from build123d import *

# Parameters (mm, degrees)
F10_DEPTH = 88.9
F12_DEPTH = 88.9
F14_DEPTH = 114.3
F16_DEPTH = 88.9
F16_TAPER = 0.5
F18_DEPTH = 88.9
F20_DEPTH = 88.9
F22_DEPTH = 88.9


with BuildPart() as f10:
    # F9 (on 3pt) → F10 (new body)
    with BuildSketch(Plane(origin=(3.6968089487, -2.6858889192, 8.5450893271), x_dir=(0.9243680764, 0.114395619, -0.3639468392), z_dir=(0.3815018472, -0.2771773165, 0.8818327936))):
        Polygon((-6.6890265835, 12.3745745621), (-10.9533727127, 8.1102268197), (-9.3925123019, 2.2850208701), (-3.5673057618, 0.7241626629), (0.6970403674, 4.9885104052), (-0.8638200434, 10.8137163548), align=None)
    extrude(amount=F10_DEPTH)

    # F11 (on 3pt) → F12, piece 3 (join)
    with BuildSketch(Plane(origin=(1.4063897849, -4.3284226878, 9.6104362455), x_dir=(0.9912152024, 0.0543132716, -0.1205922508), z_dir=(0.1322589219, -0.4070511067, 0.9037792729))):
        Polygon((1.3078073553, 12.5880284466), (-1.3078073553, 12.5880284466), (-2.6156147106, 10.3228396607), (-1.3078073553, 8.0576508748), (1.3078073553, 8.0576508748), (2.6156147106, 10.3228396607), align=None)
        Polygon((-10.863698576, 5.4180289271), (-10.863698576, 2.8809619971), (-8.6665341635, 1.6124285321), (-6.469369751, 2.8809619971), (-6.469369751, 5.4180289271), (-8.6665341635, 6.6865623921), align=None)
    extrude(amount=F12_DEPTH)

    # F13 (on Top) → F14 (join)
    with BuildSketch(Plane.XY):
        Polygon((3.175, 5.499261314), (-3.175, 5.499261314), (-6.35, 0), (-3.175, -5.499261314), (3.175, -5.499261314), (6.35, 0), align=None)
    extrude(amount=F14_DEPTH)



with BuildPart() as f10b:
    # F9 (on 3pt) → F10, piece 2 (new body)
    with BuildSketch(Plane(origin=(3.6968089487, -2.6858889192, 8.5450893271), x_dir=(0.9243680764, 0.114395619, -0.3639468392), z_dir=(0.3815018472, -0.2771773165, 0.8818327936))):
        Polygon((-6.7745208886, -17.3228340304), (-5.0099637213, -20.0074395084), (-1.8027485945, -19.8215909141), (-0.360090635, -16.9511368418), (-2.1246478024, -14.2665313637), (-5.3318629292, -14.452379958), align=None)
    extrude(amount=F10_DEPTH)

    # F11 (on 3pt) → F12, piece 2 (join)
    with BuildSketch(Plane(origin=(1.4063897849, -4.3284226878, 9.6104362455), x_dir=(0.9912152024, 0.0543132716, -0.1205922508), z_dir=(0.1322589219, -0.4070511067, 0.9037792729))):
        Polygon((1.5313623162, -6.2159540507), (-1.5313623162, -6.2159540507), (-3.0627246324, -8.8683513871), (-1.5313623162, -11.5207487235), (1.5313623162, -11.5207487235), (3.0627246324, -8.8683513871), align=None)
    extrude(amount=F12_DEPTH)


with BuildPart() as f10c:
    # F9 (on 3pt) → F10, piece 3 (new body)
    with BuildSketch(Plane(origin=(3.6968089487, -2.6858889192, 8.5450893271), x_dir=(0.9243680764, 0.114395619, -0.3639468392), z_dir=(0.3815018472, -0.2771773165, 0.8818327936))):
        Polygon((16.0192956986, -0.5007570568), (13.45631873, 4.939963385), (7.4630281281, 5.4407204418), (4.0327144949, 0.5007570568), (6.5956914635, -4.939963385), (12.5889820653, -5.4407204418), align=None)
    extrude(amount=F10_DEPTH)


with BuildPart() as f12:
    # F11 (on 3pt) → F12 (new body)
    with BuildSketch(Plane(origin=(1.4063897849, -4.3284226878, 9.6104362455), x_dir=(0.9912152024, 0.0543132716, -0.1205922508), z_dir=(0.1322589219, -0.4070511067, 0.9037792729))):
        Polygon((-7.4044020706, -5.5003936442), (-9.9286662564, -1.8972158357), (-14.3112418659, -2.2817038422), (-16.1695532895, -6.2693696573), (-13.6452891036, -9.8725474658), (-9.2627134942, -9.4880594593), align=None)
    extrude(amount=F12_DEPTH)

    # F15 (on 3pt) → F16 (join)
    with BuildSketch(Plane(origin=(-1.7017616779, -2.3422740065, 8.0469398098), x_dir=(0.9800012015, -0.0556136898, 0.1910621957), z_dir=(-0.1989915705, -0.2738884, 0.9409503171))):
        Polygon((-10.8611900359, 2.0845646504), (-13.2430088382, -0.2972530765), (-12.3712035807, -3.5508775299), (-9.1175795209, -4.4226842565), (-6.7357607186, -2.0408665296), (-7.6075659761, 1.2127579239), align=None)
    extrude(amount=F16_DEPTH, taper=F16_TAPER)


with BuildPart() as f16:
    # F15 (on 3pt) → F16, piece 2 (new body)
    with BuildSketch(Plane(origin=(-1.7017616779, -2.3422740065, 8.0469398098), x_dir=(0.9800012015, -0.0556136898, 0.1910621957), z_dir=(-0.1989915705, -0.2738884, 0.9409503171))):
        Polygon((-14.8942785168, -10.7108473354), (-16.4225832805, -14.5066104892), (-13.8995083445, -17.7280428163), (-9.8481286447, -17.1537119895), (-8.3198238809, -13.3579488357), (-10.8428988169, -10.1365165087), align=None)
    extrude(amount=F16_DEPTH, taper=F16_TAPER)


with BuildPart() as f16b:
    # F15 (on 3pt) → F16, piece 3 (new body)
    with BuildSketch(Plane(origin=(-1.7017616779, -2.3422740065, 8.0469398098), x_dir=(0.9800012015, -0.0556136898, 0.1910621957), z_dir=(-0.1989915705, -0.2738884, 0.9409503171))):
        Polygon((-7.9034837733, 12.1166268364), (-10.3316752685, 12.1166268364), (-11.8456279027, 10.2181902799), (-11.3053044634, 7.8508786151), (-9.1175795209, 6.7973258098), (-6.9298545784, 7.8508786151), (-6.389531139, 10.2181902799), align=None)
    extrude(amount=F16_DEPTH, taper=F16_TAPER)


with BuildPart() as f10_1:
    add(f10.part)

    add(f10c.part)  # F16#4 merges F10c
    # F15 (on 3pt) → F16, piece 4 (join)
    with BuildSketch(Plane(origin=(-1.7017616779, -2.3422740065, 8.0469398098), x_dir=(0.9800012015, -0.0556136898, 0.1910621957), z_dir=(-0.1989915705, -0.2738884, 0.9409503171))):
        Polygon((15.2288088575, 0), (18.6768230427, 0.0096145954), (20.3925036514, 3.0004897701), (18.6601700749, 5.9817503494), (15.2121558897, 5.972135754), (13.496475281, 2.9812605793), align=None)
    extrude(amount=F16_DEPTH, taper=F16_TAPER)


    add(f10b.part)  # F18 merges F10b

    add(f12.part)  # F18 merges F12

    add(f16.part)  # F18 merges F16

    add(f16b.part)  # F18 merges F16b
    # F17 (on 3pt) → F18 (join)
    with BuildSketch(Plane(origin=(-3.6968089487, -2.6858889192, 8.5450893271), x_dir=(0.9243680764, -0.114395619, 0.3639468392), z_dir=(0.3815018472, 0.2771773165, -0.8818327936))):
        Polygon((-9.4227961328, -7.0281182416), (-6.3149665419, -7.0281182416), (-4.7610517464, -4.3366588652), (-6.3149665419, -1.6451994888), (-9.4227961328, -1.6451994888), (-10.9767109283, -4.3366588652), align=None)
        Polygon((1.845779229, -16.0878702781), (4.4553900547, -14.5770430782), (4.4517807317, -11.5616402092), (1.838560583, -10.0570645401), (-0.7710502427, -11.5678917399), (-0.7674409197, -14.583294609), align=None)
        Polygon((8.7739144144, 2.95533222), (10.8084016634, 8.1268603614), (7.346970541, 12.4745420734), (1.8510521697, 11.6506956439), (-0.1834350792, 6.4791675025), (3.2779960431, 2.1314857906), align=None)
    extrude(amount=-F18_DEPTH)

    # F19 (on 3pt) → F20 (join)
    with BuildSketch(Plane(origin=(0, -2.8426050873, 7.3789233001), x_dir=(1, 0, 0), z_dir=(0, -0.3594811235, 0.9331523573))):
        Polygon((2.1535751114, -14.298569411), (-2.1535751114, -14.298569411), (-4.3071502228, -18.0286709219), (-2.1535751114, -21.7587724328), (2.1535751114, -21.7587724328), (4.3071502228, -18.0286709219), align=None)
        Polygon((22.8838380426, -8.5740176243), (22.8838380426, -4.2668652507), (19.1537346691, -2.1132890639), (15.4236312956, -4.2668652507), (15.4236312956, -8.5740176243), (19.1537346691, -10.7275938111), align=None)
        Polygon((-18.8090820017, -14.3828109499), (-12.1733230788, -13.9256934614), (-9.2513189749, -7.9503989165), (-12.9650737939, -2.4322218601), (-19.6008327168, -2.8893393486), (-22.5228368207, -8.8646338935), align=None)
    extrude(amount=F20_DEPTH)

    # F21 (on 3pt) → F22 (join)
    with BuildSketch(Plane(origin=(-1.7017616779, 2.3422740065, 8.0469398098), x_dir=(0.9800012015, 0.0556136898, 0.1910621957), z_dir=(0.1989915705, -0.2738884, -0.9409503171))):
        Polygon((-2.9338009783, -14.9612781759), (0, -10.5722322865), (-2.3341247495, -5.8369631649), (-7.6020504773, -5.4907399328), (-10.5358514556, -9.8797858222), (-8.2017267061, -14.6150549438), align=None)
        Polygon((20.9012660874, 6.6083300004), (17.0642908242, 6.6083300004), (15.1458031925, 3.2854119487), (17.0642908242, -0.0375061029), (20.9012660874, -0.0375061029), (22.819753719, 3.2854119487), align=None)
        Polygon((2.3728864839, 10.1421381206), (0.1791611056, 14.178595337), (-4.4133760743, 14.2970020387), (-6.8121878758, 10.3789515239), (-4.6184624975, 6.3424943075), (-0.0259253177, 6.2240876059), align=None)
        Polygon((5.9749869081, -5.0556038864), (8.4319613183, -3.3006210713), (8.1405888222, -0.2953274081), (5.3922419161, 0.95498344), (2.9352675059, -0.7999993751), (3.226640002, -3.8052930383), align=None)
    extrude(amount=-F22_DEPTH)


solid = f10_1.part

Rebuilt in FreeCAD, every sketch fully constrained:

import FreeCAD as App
import Part
import Sketcher
from FreeCAD import Vector
Q = App.Units.Quantity

doc = App.newDocument("Part")
body = doc.addObject("PartDesign::Body", "Body")

# Sketch on an angled plane
sketch1 = body.newObject("Sketcher::SketchObject", "Sketch")
sketch1.Placement = App.Placement(Vector(3.696809, -2.685889, 8.545089), App.Rotation(Vector(0.924368076, 0.114395619, -0.363946839), Vector(0, 0.953984474, 0.299856002), Vector(0.381501847, -0.277177316, 0.881832794), "ZXY"))
sketch1.addGeometry([
    Part.LineSegment(Vector(-6.689027, 12.374575, 0), Vector(-10.953373, 8.110227, 0)),  # 0
    Part.LineSegment(Vector(-10.953373, 8.110227, 0), Vector(-9.392512, 2.285021, 0)),  # 1
    Part.LineSegment(Vector(-9.392512, 2.285021, 0), Vector(-3.567306, 0.724163, 0)),  # 2
    Part.LineSegment(Vector(-3.567306, 0.724163, 0), Vector(0.69704, 4.98851, 0)),  # 3
    Part.LineSegment(Vector(0.69704, 4.98851, 0), Vector(-0.86382, 10.813716, 0)),  # 4
    Part.LineSegment(Vector(-0.86382, 10.813716, 0), Vector(-6.689027, 12.374575, 0)),  # 5
], False)
sketch1.addConstraint([
    Sketcher.Constraint("Coincident", 0, 2, 1, 1),
    Sketcher.Constraint("Coincident", 1, 2, 2, 1),
    Sketcher.Constraint("Coincident", 2, 2, 3, 1),
    Sketcher.Constraint("Coincident", 3, 2, 4, 1),
    Sketcher.Constraint("Coincident", 4, 2, 5, 1),
    Sketcher.Constraint("Coincident", 5, 2, 0, 1),
    Sketcher.Constraint("Parallel", 0, 3),
    Sketcher.Constraint("Parallel", 1, 4),
    Sketcher.Constraint("Parallel", 2, 5),
    Sketcher.Constraint("Equal", 0, 1),
    Sketcher.Constraint("Equal", 1, 2),
    Sketcher.Constraint("Equal", 2, 3),
    Sketcher.Constraint("Angle", 0, Q("-134.999989 deg")),
    Sketcher.Constraint("Angle", 1, Q("-74.999989 deg")),
    Sketcher.Constraint("Angle", 2, Q("-14.999989 deg")),
    Sketcher.Constraint("DistanceY", -1, 1, 1, 2, 2.285021),
    Sketcher.Constraint("DistanceX", -1, 1, 3, 2, 0.69704),
    Sketcher.Constraint("DistanceY", -1, 1, 3, 2, 4.98851),
])
pad1 = body.newObject("PartDesign::Pad", "Pad")
pad1.Profile = sketch1
pad1.Length = Q("3.5 in")

# Sketch on an angled plane
sketch2 = body.newObject("Sketcher::SketchObject", "Sketch001")
sketch2.Placement = App.Placement(Vector(1.40639, -4.328423, 9.610436), App.Rotation(Vector(0.991215202, 0.054313272, -0.120592251), Vector(0, 0.911789156, 0.41065866), Vector(0.132258922, -0.407051107, 0.903779273), "ZXY"))
sketch2.addGeometry([
    Part.LineSegment(Vector(1.307807, 12.588028, 0), Vector(-1.307807, 12.588028, 0)),  # 0
    Part.LineSegment(Vector(-1.307807, 12.588028, 0), Vector(-2.615615, 10.32284, 0)),  # 1
    Part.LineSegment(Vector(-2.615615, 10.32284, 0), Vector(-1.307807, 8.057651, 0)),  # 2
    Part.LineSegment(Vector(-1.307807, 8.057651, 0), Vector(1.307807, 8.057651, 0)),  # 3
    Part.LineSegment(Vector(1.307807, 8.057651, 0), Vector(2.615615, 10.32284, 0)),  # 4
    Part.LineSegment(Vector(2.615615, 10.32284, 0), Vector(1.307807, 12.588028, 0)),  # 5
    Part.LineSegment(Vector(-10.863699, 5.418029, 0), Vector(-10.863699, 2.880962, 0)),  # 6
    Part.LineSegment(Vector(-10.863699, 2.880962, 0), Vector(-8.666534, 1.612429, 0)),  # 7
    Part.LineSegment(Vector(-8.666534, 1.612429, 0), Vector(-6.46937, 2.880962, 0)),  # 8
    Part.LineSegment(Vector(-6.46937, 2.880962, 0), Vector(-6.46937, 5.418029, 0)),  # 9
    Part.LineSegment(Vector(-6.46937, 5.418029, 0), Vector(-8.666534, 6.686562, 0)),  # 10
    Part.LineSegment(Vector(-8.666534, 6.686562, 0), Vector(-10.863699, 5.418029, 0)),  # 11
], False)
sketch2.addConstraint([
    Sketcher.Constraint("Coincident", 0, 2, 1, 1),
    Sketcher.Constraint("Coincident", 1, 2, 2, 1),
    Sketcher.Constraint("Coincident", 2, 2, 3, 1),
    Sketcher.Constraint("Coincident", 3, 2, 4, 1),
    Sketcher.Constraint("Coincident", 4, 2, 5, 1),
    Sketcher.Constraint("Coincident", 5, 2, 0, 1),
    Sketcher.Constraint("Coincident", 6, 2, 7, 1),
    Sketcher.Constraint("Coincident", 7, 2, 8, 1),
    Sketcher.Constraint("Coincident", 8, 2, 9, 1),
    Sketcher.Constraint("Coincident", 9, 2, 10, 1),
    Sketcher.Constraint("Coincident", 10, 2, 11, 1),
    Sketcher.Constraint("Coincident", 11, 2, 6, 1),
    Sketcher.Constraint("Horizontal", 0),
    Sketcher.Constraint("Horizontal", 3),
    Sketcher.Constraint("Vertical", 6),
    Sketcher.Constraint("Vertical", 9),
    Sketcher.Constraint("Symmetric", 1, 2, 4, 2, -2),
    Sketcher.Constraint("Parallel", 1, 4),
    Sketcher.Constraint("Parallel", 2, 5),
    Sketcher.Constraint("Perpendicular", 4, 7),
    Sketcher.Constraint("Perpendicular", 5, 8),
    Sketcher.Constraint("Parallel", 7, 10),
    Sketcher.Constraint("Parallel", 8, 11),
    Sketcher.Constraint("Horizontal", 6, 2, 8, 2),
    Sketcher.Constraint("Horizontal", 9, 2, 11, 2),
    Sketcher.Constraint("Vertical", 0, 2, 2, 2),
    Sketcher.Constraint("Vertical", 3, 2, 5, 2),
    Sketcher.Constraint("Angle", 1, Q("-120 deg")),
    Sketcher.Constraint("DistanceX", 6, 2, -1, 1, 10.863699),
    Sketcher.Constraint("DistanceY", 7, 2, 0, 2, 10.9756),
    Sketcher.Constraint("DistanceY", 7, 2, 9, 2, 3.8056),
    Sketcher.Constraint("DistanceX", 0, 2, 0, 1, 2.615615),
    Sketcher.Constraint("DistanceY", 6, 2, 6, 1, 2.537067),
    Sketcher.Constraint("DistanceY", -1, 1, 0, 2, 12.588028),
    Sketcher.Constraint("DistanceY", -1, 1, 1, 2, 10.32284),
])
pad2 = body.newObject("PartDesign::Pad", "Pad001")
pad2.Profile = sketch2
pad2.Length = Q("3.5 in")

# Sketch on XY plane
sketch3 = body.newObject("Sketcher::SketchObject", "Sketch002")
sketch3.AttachmentSupport = (doc.getObject("XY_Plane"), [""])
sketch3.MapMode = "FlatFace"
sketch3.addGeometry([
    Part.LineSegment(Vector(3.175, 5.499261, 0), Vector(-3.175, 5.499261, 0)),  # 0
    Part.LineSegment(Vector(-3.175, 5.499261, 0), Vector(-6.35, 0, 0)),  # 1
    Part.LineSegment(Vector(-6.35, 0, 0), Vector(-3.175, -5.499261, 0)),  # 2
    Part.LineSegment(Vector(-3.175, -5.499261, 0), Vector(3.175, -5.499261, 0)),  # 3
    Part.LineSegment(Vector(3.175, -5.499261, 0), Vector(6.35, 0, 0)),  # 4
    Part.LineSegment(Vector(6.35, 0, 0), Vector(3.175, 5.499261, 0)),  # 5
], False)
sketch3.addConstraint([
    Sketcher.Constraint("Coincident", 0, 2, 1, 1),
    Sketcher.Constraint("Coincident", 1, 2, 2, 1),
    Sketcher.Constraint("Coincident", 2, 2, 3, 1),
    Sketcher.Constraint("Coincident", 3, 2, 4, 1),
    Sketcher.Constraint("Coincident", 4, 2, 5, 1),
    Sketcher.Constraint("Coincident", 5, 2, 0, 1),
    Sketcher.Constraint("Horizontal", 0),
    Sketcher.Constraint("Horizontal", 3),
    Sketcher.Constraint("Symmetric", 0, 2, 3, 2, -1, 1),
    Sketcher.Constraint("Symmetric", 1, 2, 4, 2, -1, 1),
    Sketcher.Constraint("PointOnObject", 1, 2, -1),
    Sketcher.Constraint("Parallel", 2, 5),
    Sketcher.Constraint("Vertical", 0, 2, 2, 2),
    Sketcher.Constraint("Angle", 1, Q("-120 deg")),
    Sketcher.Constraint("DistanceX", 0, 2, 0, 1, Q("0.25 in")),
    Sketcher.Constraint("DistanceX", 1, 2, 4, 2, Q("0.5 in")),
])
pad3 = body.newObject("PartDesign::Pad", "Pad002")
pad3.Profile = sketch3
pad3.Length = Q("4.5 in")
body2 = doc.addObject("PartDesign::Body", "Body001")

# Sketch on an angled plane
sketch4 = body2.newObject("Sketcher::SketchObject", "Sketch003")
sketch4.Placement = App.Placement(Vector(3.696809, -2.685889, 8.545089), App.Rotation(Vector(0.924368076, 0.114395619, -0.363946839), Vector(0, 0.953984474, 0.299856002), Vector(0.381501847, -0.277177316, 0.881832794), "ZXY"))
sketch4.addGeometry([
    Part.LineSegment(Vector(-6.774521, -17.322834, 0), Vector(-5.009964, -20.007439, 0)),  # 0
    Part.LineSegment(Vector(-5.009964, -20.007439, 0), Vector(-1.802749, -19.821591, 0)),  # 1
    Part.LineSegment(Vector(-1.802749, -19.821591, 0), Vector(-0.360091, -16.951137, 0)),  # 2
    Part.LineSegment(Vector(-0.360091, -16.951137, 0), Vector(-2.124648, -14.266531, 0)),  # 3
    Part.LineSegment(Vector(-2.124648, -14.266531, 0), Vector(-5.331863, -14.45238, 0)),  # 4
    Part.LineSegment(Vector(-5.331863, -14.45238, 0), Vector(-6.774521, -17.322834, 0)),  # 5
], False)
sketch4.addConstraint([
    Sketcher.Constraint("Coincident", 0, 2, 1, 1),
    Sketcher.Constraint("Coincident", 1, 2, 2, 1),
    Sketcher.Constraint("Coincident", 2, 2, 3, 1),
    Sketcher.Constraint("Coincident", 3, 2, 4, 1),
    Sketcher.Constraint("Coincident", 4, 2, 5, 1),
    Sketcher.Constraint("Coincident", 5, 2, 0, 1),
    Sketcher.Constraint("Parallel", 0, 3),
    Sketcher.Constraint("Parallel", 1, 4),
    Sketcher.Constraint("Parallel", 2, 5),
    Sketcher.Constraint("Equal", 0, 1),
    Sketcher.Constraint("Equal", 1, 2),
    Sketcher.Constraint("Equal", 2, 3),
    Sketcher.Constraint("DistanceX", 3, 2, 1, 2, 0.321899),
    Sketcher.Constraint("DistanceY", 0, 2, -1, 1, 20.007439),
    Sketcher.Constraint("DistanceX", 1, 2, -1, 1, 1.802749),
    Sketcher.Constraint("DistanceY", 1, 2, -1, 1, 19.821591),
    Sketcher.Constraint("DistanceX", 2, 2, -1, 1, 0.360091),
    Sketcher.Constraint("DistanceY", 3, 2, -1, 1, 14.266531),
])
pad4 = body2.newObject("PartDesign::Pad", "Pad003")
pad4.Profile = sketch4
pad4.Length = Q("3.5 in")

# Sketch on an angled plane
sketch5 = body2.newObject("Sketcher::SketchObject", "Sketch004")
sketch5.Placement = App.Placement(Vector(1.40639, -4.328423, 9.610436), App.Rotation(Vector(0.991215202, 0.054313272, -0.120592251), Vector(0, 0.911789156, 0.41065866), Vector(0.132258922, -0.407051107, 0.903779273), "ZXY"))
sketch5.addGeometry([
    Part.LineSegment(Vector(1.531362, -6.215954, 0), Vector(-1.531362, -6.215954, 0)),  # 0
    Part.LineSegment(Vector(-1.531362, -6.215954, 0), Vector(-3.062725, -8.868351, 0)),  # 1
    Part.LineSegment(Vector(-3.062725, -8.868351, 0), Vector(-1.531362, -11.520749, 0)),  # 2
    Part.LineSegment(Vector(-1.531362, -11.520749, 0), Vector(1.531362, -11.520749, 0)),  # 3
    Part.LineSegment(Vector(1.531362, -11.520749, 0), Vector(3.062725, -8.868351, 0)),  # 4
    Part.LineSegment(Vector(3.062725, -8.868351, 0), Vector(1.531362, -6.215954, 0)),  # 5
], False)
sketch5.addConstraint([
    Sketcher.Constraint("Coincident", 0, 2, 1, 1),
    Sketcher.Constraint("Coincident", 1, 2, 2, 1),
    Sketcher.Constraint("Coincident", 2, 2, 3, 1),
    Sketcher.Constraint("Coincident", 3, 2, 4, 1),
    Sketcher.Constraint("Coincident", 4, 2, 5, 1),
    Sketcher.Constraint("Coincident", 5, 2, 0, 1),
    Sketcher.Constraint("Horizontal", 0),
    Sketcher.Constraint("Horizontal", 3),
    Sketcher.Constraint("Symmetric", 1, 2, 4, 2, -2),
    Sketcher.Constraint("Parallel", 1, 4),
    Sketcher.Constraint("Parallel", 2, 5),
    Sketcher.Constraint("Vertical", 0, 2, 2, 2),
    Sketcher.Constraint("Vertical", 3, 2, 5, 2),
    Sketcher.Constraint("Angle", 1, Q("-120 deg")),
    Sketcher.Constraint("DistanceX", 0, 2, 0, 1, 3.062725),
    Sketcher.Constraint("DistanceY", 1, 2, -1, 1, 8.868351),
    Sketcher.Constraint("DistanceY", 2, 2, -1, 1, 11.520749),
])
pad5 = body2.newObject("PartDesign::Pad", "Pad004")
pad5.Profile = sketch5
pad5.Length = Q("3.5 in")
body3 = doc.addObject("PartDesign::Body", "Body002")

# Sketch on an angled plane
sketch6 = body3.newObject("Sketcher::SketchObject", "Sketch005")
sketch6.Placement = App.Placement(Vector(3.696809, -2.685889, 8.545089), App.Rotation(Vector(0.924368076, 0.114395619, -0.363946839), Vector(0, 0.953984474, 0.299856002), Vector(0.381501847, -0.277177316, 0.881832794), "ZXY"))
sketch6.addGeometry([
    Part.LineSegment(Vector(16.019296, -0.500757, 0), Vector(13.456319, 4.939963, 0)),  # 0
    Part.LineSegment(Vector(13.456319, 4.939963, 0), Vector(7.463028, 5.44072, 0)),  # 1
    Part.LineSegment(Vector(7.463028, 5.44072, 0), Vector(4.032714, 0.500757, 0)),  # 2
    Part.LineSegment(Vector(4.032714, 0.500757, 0), Vector(6.595691, -4.939963, 0)),  # 3
    Part.LineSegment(Vector(6.595691, -4.939963, 0), Vector(12.588982, -5.44072, 0)),  # 4
    Part.LineSegment(Vector(12.588982, -5.44072, 0), Vector(16.019296, -0.500757, 0)),  # 5
], False)
sketch6.addConstraint([
    Sketcher.Constraint("Coincident", 0, 2, 1, 1),
    Sketcher.Constraint("Coincident", 1, 2, 2, 1),
    Sketcher.Constraint("Coincident", 2, 2, 3, 1),
    Sketcher.Constraint("Coincident", 3, 2, 4, 1),
    Sketcher.Constraint("Coincident", 4, 2, 5, 1),
    Sketcher.Constraint("Coincident", 5, 2, 0, 1),
    Sketcher.Constraint("Parallel", 0, 3),
    Sketcher.Constraint("Parallel", 1, 4),
    Sketcher.Constraint("Parallel", 2, 5),
    Sketcher.Constraint("Equal", 0, 1),
    Sketcher.Constraint("Equal", 1, 2),
    Sketcher.Constraint("Equal", 2, 3),
    Sketcher.Constraint("DistanceX", -1, 1, 0, 2, 13.456319),
    Sketcher.Constraint("DistanceX", -1, 1, 1, 2, 7.463028),
    Sketcher.Constraint("DistanceY", -1, 1, 1, 2, 5.44072),
    Sketcher.Constraint("DistanceX", -1, 1, 3, 2, 6.595691),
    Sketcher.Constraint("DistanceY", 4, 2, -1, 1, 5.44072),
    Sketcher.Constraint("DistanceY", 3, 2, 2, 2, 5.44072),
])
pad6 = body3.newObject("PartDesign::Pad", "Pad005")
pad6.Profile = sketch6
pad6.Length = Q("3.5 in")
body4 = doc.addObject("PartDesign::Body", "Body003")

# Sketch on an angled plane
sketch7 = body4.newObject("Sketcher::SketchObject", "Sketch006")
sketch7.Placement = App.Placement(Vector(1.40639, -4.328423, 9.610436), App.Rotation(Vector(0.991215202, 0.054313272, -0.120592251), Vector(0, 0.911789156, 0.41065866), Vector(0.132258922, -0.407051107, 0.903779273), "ZXY"))
sketch7.addGeometry([
    Part.LineSegment(Vector(-7.404402, -5.500394, 0), Vector(-9.928666, -1.897216, 0)),  # 0
    Part.LineSegment(Vector(-9.928666, -1.897216, 0), Vector(-14.311242, -2.281704, 0)),  # 1
    Part.LineSegment(Vector(-14.311242, -2.281704, 0), Vector(-16.169553, -6.26937, 0)),  # 2
    Part.LineSegment(Vector(-16.169553, -6.26937, 0), Vector(-13.645289, -9.872547, 0)),  # 3
    Part.LineSegment(Vector(-13.645289, -9.872547, 0), Vector(-9.262713, -9.488059, 0)),  # 4
    Part.LineSegment(Vector(-9.262713, -9.488059, 0), Vector(-7.404402, -5.500394, 0)),  # 5
], False)
sketch7.addConstraint([
    Sketcher.Constraint("Coincident", 0, 2, 1, 1),
    Sketcher.Constraint("Coincident", 1, 2, 2, 1),
    Sketcher.Constraint("Coincident", 2, 2, 3, 1),
    Sketcher.Constraint("Coincident", 3, 2, 4, 1),
    Sketcher.Constraint("Coincident", 4, 2, 5, 1),
    Sketcher.Constraint("Coincident", 5, 2, 0, 1),
    Sketcher.Constraint("Parallel", 0, 3),
    Sketcher.Constraint("Parallel", 1, 4),
    Sketcher.Constraint("Parallel", 2, 5),
    Sketcher.Constraint("Equal", 0, 1),
    Sketcher.Constraint("Equal", 1, 2),
    Sketcher.Constraint("Equal", 2, 3),
    Sketcher.Constraint("Distance", 0, 4.399409),
    Sketcher.Constraint("DistanceX", 1, 2, -1, 1, 14.311242),
    Sketcher.Constraint("DistanceY", 2, 2, -1, 1, 6.26937),
    Sketcher.Constraint("DistanceX", 3, 2, -1, 1, 13.645289),
    Sketcher.Constraint("DistanceY", 4, 2, -1, 1, 9.488059),
    Sketcher.Constraint("DistanceY", 1, 2, 0, 2, 0.384488),
])
pad7 = body4.newObject("PartDesign::Pad", "Pad006")
pad7.Profile = sketch7
pad7.Length = Q("3.5 in")

# Sketch on an angled plane
sketch8 = body4.newObject("Sketcher::SketchObject", "Sketch007")
sketch8.Placement = App.Placement(Vector(-1.701762, -2.342274, 8.04694), App.Rotation(Vector(0.980001201, -0.05561369, 0.191062196), Vector(0, 0.960152207, 0.279477616), Vector(-0.19899157, -0.2738884, 0.940950317), "ZXY"))
sketch8.addGeometry([
    Part.LineSegment(Vector(-10.86119, 2.084565, 0), Vector(-13.243009, -0.297253, 0)),  # 0
    Part.LineSegment(Vector(-13.243009, -0.297253, 0), Vector(-12.371204, -3.550878, 0)),  # 1
    Part.LineSegment(Vector(-12.371204, -3.550878, 0), Vector(-9.11758, -4.422684, 0)),  # 2
    Part.LineSegment(Vector(-9.11758, -4.422684, 0), Vector(-6.735761, -2.040867, 0)),  # 3
    Part.LineSegment(Vector(-6.735761, -2.040867, 0), Vector(-7.607566, 1.212758, 0)),  # 4
    Part.LineSegment(Vector(-7.607566, 1.212758, 0), Vector(-10.86119, 2.084565, 0)),  # 5
], False)
sketch8.addConstraint([
    Sketcher.Constraint("Coincident", 0, 2, 1, 1),
    Sketcher.Constraint("Coincident", 1, 2, 2, 1),
    Sketcher.Constraint("Coincident", 2, 2, 3, 1),
    Sketcher.Constraint("Coincident", 3, 2, 4, 1),
    Sketcher.Constraint("Coincident", 4, 2, 5, 1),
    Sketcher.Constraint("Coincident", 5, 2, 0, 1),
    Sketcher.Constraint("Parallel", 0, 3),
    Sketcher.Constraint("Parallel", 1, 4),
    Sketcher.Constraint("Parallel", 2, 5),
    Sketcher.Constraint("Equal", 0, 1),
    Sketcher.Constraint("Equal", 1, 2),
    Sketcher.Constraint("Equal", 2, 3),
    Sketcher.Constraint("Angle", 0, Q("-135.000013 deg")),
    Sketcher.Constraint("Angle", 1, Q("-75.000013 deg")),
    Sketcher.Constraint("Angle", 2, Q("-15.000013 deg")),
    Sketcher.Constraint("Distance", 0, 3.3684),
    Sketcher.Constraint("DistanceX", 0, 2, -1, 1, 13.243009),
    Sketcher.Constraint("DistanceY", 0, 2, -1, 1, 0.297253),
])
pad8 = body4.newObject("PartDesign::Pad", "Pad007")
pad8.Profile = sketch8
pad8.Length = Q("3.5 in")
pad8.TaperAngle = -0.5
body5 = doc.addObject("PartDesign::Body", "Body004")

# Sketch on an angled plane
sketch9 = body5.newObject("Sketcher::SketchObject", "Sketch008")
sketch9.Placement = App.Placement(Vector(-1.701762, -2.342274, 8.04694), App.Rotation(Vector(0.980001201, -0.05561369, 0.191062196), Vector(0, 0.960152207, 0.279477616), Vector(-0.19899157, -0.2738884, 0.940950317), "ZXY"))
sketch9.addGeometry([
    Part.LineSegment(Vector(-14.894279, -10.710847, 0), Vector(-16.422583, -14.50661, 0)),  # 0
    Part.LineSegment(Vector(-16.422583, -14.50661, 0), Vector(-13.899508, -17.728043, 0)),  # 1
    Part.LineSegment(Vector(-13.899508, -17.728043, 0), Vector(-9.848129, -17.153712, 0)),  # 2
    Part.LineSegment(Vector(-9.848129, -17.153712, 0), Vector(-8.319824, -13.357949, 0)),  # 3
    Part.LineSegment(Vector(-8.319824, -13.357949, 0), Vector(-10.842899, -10.136516, 0)),  # 4
    Part.LineSegment(Vector(-10.842899, -10.136516, 0), Vector(-14.894279, -10.710847, 0)),  # 5
], False)
sketch9.addConstraint([
    Sketcher.Constraint("Coincident", 0, 2, 1, 1),
    Sketcher.Constraint("Coincident", 1, 2, 2, 1),
    Sketcher.Constraint("Coincident", 2, 2, 3, 1),
    Sketcher.Constraint("Coincident", 3, 2, 4, 1),
    Sketcher.Constraint("Coincident", 4, 2, 5, 1),
    Sketcher.Constraint("Coincident", 5, 2, 0, 1),
    Sketcher.Constraint("Parallel", 0, 3),
    Sketcher.Constraint("Parallel", 1, 4),
    Sketcher.Constraint("Parallel", 2, 5),
    Sketcher.Constraint("Equal", 0, 1),
    Sketcher.Constraint("Equal", 1, 2),
    Sketcher.Constraint("Equal", 2, 3),
    Sketcher.Constraint("DistanceX", 4, 2, -1, 1, 10.842899),
    Sketcher.Constraint("DistanceY", 2, 2, 0, 2, 2.647101),
    Sketcher.Constraint("DistanceY", 0, 2, -1, 1, 14.50661),
    Sketcher.Constraint("DistanceX", 1, 2, -1, 1, 13.899508),
    Sketcher.Constraint("DistanceX", 2, 2, -1, 1, 9.848129),
    Sketcher.Constraint("DistanceY", 3, 2, -1, 1, 13.357949),
])
pad9 = body5.newObject("PartDesign::Pad", "Pad008")
pad9.Profile = sketch9
pad9.Length = Q("3.5 in")
pad9.TaperAngle = -0.5
body6 = doc.addObject("PartDesign::Body", "Body005")

# Sketch on an angled plane
sketch10 = body6.newObject("Sketcher::SketchObject", "Sketch009")
sketch10.Placement = App.Placement(Vector(-1.701762, -2.342274, 8.04694), App.Rotation(Vector(0.980001201, -0.05561369, 0.191062196), Vector(0, 0.960152207, 0.279477616), Vector(-0.19899157, -0.2738884, 0.940950317), "ZXY"))
sketch10.addGeometry([
    Part.LineSegment(Vector(-7.903484, 12.116627, 0), Vector(-10.331675, 12.116627, 0)),  # 0
    Part.LineSegment(Vector(-10.331675, 12.116627, 0), Vector(-11.845628, 10.21819, 0)),  # 1
    Part.LineSegment(Vector(-11.845628, 10.21819, 0), Vector(-11.305304, 7.850879, 0)),  # 2
    Part.LineSegment(Vector(-11.305304, 7.850879, 0), Vector(-9.11758, 6.797326, 0)),  # 3
    Part.LineSegment(Vector(-9.11758, 6.797326, 0), Vector(-6.929855, 7.850879, 0)),  # 4
    Part.LineSegment(Vector(-6.929855, 7.850879, 0), Vector(-6.389531, 10.21819, 0)),  # 5
    Part.LineSegment(Vector(-6.389531, 10.21819, 0), Vector(-7.903484, 12.116627, 0)),  # 6
], False)
sketch10.addConstraint([
    Sketcher.Constraint("Coincident", 0, 2, 1, 1),
    Sketcher.Constraint("Coincident", 1, 2, 2, 1),
    Sketcher.Constraint("Coincident", 2, 2, 3, 1),
    Sketcher.Constraint("Coincident", 3, 2, 4, 1),
    Sketcher.Constraint("Coincident", 4, 2, 5, 1),
    Sketcher.Constraint("Coincident", 5, 2, 6, 1),
    Sketcher.Constraint("Coincident", 6, 2, 0, 1),
    Sketcher.Constraint("Horizontal", 0),
    Sketcher.Constraint("Horizontal", 2, 2, 4, 2),
    Sketcher.Constraint("Horizontal", 1, 2, 5, 2),
    Sketcher.Constraint("Equal", 1, 2),
    Sketcher.Constraint("Equal", 2, 3),
    Sketcher.Constraint("Equal", 3, 4),
    Sketcher.Constraint("Equal", 4, 5),
    Sketcher.Constraint("Equal", 5, 6),
    Sketcher.Constraint("DistanceX", 0, 2, 0, 1, 2.428191),
    Sketcher.Constraint("DistanceY", 3, 2, 0, 2, 5.319301),
    Sketcher.Constraint("Distance", 1, 2.428191),
    Sketcher.Constraint("DistanceY", -1, 1, 1, 2, 10.21819),
    Sketcher.Constraint("DistanceY", -1, 1, 2, 2, 7.850879),
    Sketcher.Constraint("DistanceX", 3, 2, -1, 1, 9.11758),
])
pad10 = body6.newObject("PartDesign::Pad", "Pad009")
pad10.Profile = sketch10
pad10.Length = Q("3.5 in")
pad10.TaperAngle = -0.5
body.AllowCompound = True
doc.recompute()

boolean = body.newObject("PartDesign::Boolean", "Boolean")
boolean.Type = "Fuse"
boolean.addObjects([body3])

# Sketch on an angled plane
sketch11 = body.newObject("Sketcher::SketchObject", "Sketch010")
sketch11.Placement = App.Placement(Vector(-1.701762, -2.342274, 8.04694), App.Rotation(Vector(0.980001201, -0.05561369, 0.191062196), Vector(0, 0.960152207, 0.279477616), Vector(-0.19899157, -0.2738884, 0.940950317), "ZXY"))
sketch11.addGeometry([
    Part.LineSegment(Vector(15.228809, 0, 0), Vector(18.676823, 0.009615, 0)),  # 0
    Part.LineSegment(Vector(18.676823, 0.009615, 0), Vector(20.392504, 3.00049, 0)),  # 1
    Part.LineSegment(Vector(20.392504, 3.00049, 0), Vector(18.66017, 5.98175, 0)),  # 2
    Part.LineSegment(Vector(18.66017, 5.98175, 0), Vector(15.212156, 5.972136, 0)),  # 3
    Part.LineSegment(Vector(15.212156, 5.972136, 0), Vector(13.496475, 2.981261, 0)),  # 4
    Part.LineSegment(Vector(13.496475, 2.981261, 0), Vector(15.228809, 0, 0)),  # 5
], False)
sketch11.addConstraint([
    Sketcher.Constraint("Coincident", 0, 2, 1, 1),
    Sketcher.Constraint("Coincident", 1, 2, 2, 1),
    Sketcher.Constraint("Coincident", 2, 2, 3, 1),
    Sketcher.Constraint("Coincident", 3, 2, 4, 1),
    Sketcher.Constraint("Coincident", 4, 2, 5, 1),
    Sketcher.Constraint("Coincident", 5, 2, 0, 1),
    Sketcher.Constraint("PointOnObject", 5, 2, -1),
    Sketcher.Constraint("Parallel", 0, 3),
    Sketcher.Constraint("Parallel", 1, 4),
    Sketcher.Constraint("Parallel", 2, 5),
    Sketcher.Constraint("Equal", 0, 1),
    Sketcher.Constraint("Equal", 1, 2),
    Sketcher.Constraint("Equal", 2, 3),
    Sketcher.Constraint("DistanceY", -1, 1, 1, 2, 3.00049),
    Sketcher.Constraint("DistanceX", -1, 1, 2, 2, 18.66017),
    Sketcher.Constraint("DistanceY", -1, 1, 2, 2, 5.98175),
    Sketcher.Constraint("DistanceX", -1, 1, 5, 2, 15.228809),
    Sketcher.Constraint("DistanceX", 0, 2, 1, 2, 1.715681),
])
pad11 = body.newObject("PartDesign::Pad", "Pad010")
pad11.Profile = sketch11
pad11.Length = Q("3.5 in")
pad11.TaperAngle = -0.5
doc.recompute()

boolean2 = body.newObject("PartDesign::Boolean", "Boolean001")
boolean2.Type = "Fuse"
boolean2.addObjects([body2])
doc.recompute()

boolean3 = body.newObject("PartDesign::Boolean", "Boolean002")
boolean3.Type = "Fuse"
boolean3.addObjects([body4])
doc.recompute()

boolean4 = body.newObject("PartDesign::Boolean", "Boolean003")
boolean4.Type = "Fuse"
boolean4.addObjects([body5])
doc.recompute()

boolean5 = body.newObject("PartDesign::Boolean", "Boolean004")
boolean5.Type = "Fuse"
boolean5.addObjects([body6])

# Sketch on an angled plane
sketch12 = body.newObject("Sketcher::SketchObject", "Sketch011")
sketch12.Placement = App.Placement(Vector(-3.696809, -2.685889, 8.545089), App.Rotation(Vector(0.924368076, -0.114395619, 0.363946839), Vector(0, -0.953984474, -0.299856002), Vector(0.381501847, 0.277177316, -0.881832794), "ZXY"))
sketch12.addGeometry([
    Part.LineSegment(Vector(-9.422796, -7.028118, 0), Vector(-6.314967, -7.028118, 0)),  # 0
    Part.LineSegment(Vector(-6.314967, -7.028118, 0), Vector(-4.761052, -4.336659, 0)),  # 1
    Part.LineSegment(Vector(-4.761052, -4.336659, 0), Vector(-6.314967, -1.645199, 0)),  # 2
    Part.LineSegment(Vector(-6.314967, -1.645199, 0), Vector(-9.422796, -1.645199, 0)),  # 3
    Part.LineSegment(Vector(-9.422796, -1.645199, 0), Vector(-10.976711, -4.336659, 0)),  # 4
    Part.LineSegment(Vector(-10.976711, -4.336659, 0), Vector(-9.422796, -7.028118, 0)),  # 5
    Part.LineSegment(Vector(1.845779, -16.08787, 0), Vector(4.45539, -14.577043, 0)),  # 6
    Part.LineSegment(Vector(4.45539, -14.577043, 0), Vector(4.451781, -11.56164, 0)),  # 7
    Part.LineSegment(Vector(4.451781, -11.56164, 0), Vector(1.838561, -10.057065, 0)),  # 8
    Part.LineSegment(Vector(1.838561, -10.057065, 0), Vector(-0.77105, -11.567892, 0)),  # 9
    Part.LineSegment(Vector(-0.77105, -11.567892, 0), Vector(-0.767441, -14.583295, 0)),  # 10
    Part.LineSegment(Vector(-0.767441, -14.583295, 0), Vector(1.845779, -16.08787, 0)),  # 11
    Part.LineSegment(Vector(8.773914, 2.955332, 0), Vector(10.808402, 8.12686, 0)),  # 12
    Part.LineSegment(Vector(10.808402, 8.12686, 0), Vector(7.346971, 12.474542, 0)),  # 13
    Part.LineSegment(Vector(7.346971, 12.474542, 0), Vector(1.851052, 11.650696, 0)),  # 14
    Part.LineSegment(Vector(1.851052, 11.650696, 0), Vector(-0.183435, 6.479167, 0)),  # 15
    Part.LineSegment(Vector(-0.183435, 6.479167, 0), Vector(3.277996, 2.131486, 0)),  # 16
    Part.LineSegment(Vector(3.277996, 2.131486, 0), Vector(8.773914, 2.955332, 0)),  # 17
], False)
sketch12.addConstraint([
    Sketcher.Constraint("Coincident", 0, 2, 1, 1),
    Sketcher.Constraint("Coincident", 1, 2, 2, 1),
    Sketcher.Constraint("Coincident", 2, 2, 3, 1),
    Sketcher.Constraint("Coincident", 3, 2, 4, 1),
    Sketcher.Constraint("Coincident", 4, 2, 5, 1),
    Sketcher.Constraint("Coincident", 5, 2, 0, 1),
    Sketcher.Constraint("Coincident", 6, 2, 7, 1),
    Sketcher.Constraint("Coincident", 7, 2, 8, 1),
    Sketcher.Constraint("Coincident", 8, 2, 9, 1),
    Sketcher.Constraint("Coincident", 9, 2, 10, 1),
    Sketcher.Constraint("Coincident", 10, 2, 11, 1),
    Sketcher.Constraint("Coincident", 11, 2, 6, 1),
    Sketcher.Constraint("Coincident", 12, 2, 13, 1),
    Sketcher.Constraint("Coincident", 13, 2, 14, 1),
    Sketcher.Constraint("Coincident", 14, 2, 15, 1),
    Sketcher.Constraint("Coincident", 15, 2, 16, 1),
    Sketcher.Constraint("Coincident", 16, 2, 17, 1),
    Sketcher.Constraint("Coincident", 17, 2, 12, 1),
    Sketcher.Constraint("Horizontal", 0),
    Sketcher.Constraint("Horizontal", 3),
    Sketcher.Constraint("Parallel", 1, 4),
    Sketcher.Constraint("Parallel", 2, 5),
    Sketcher.Constraint("Parallel", 6, 9),
    Sketcher.Constraint("Parallel", 7, 10),
    Sketcher.Constraint("Parallel", 8, 11),
    Sketcher.Constraint("Parallel", 12, 15),
    Sketcher.Constraint("Parallel", 13, 16),
    Sketcher.Constraint("Parallel", 14, 17),
    Sketcher.Constraint("Horizontal", 1, 2, 4, 2),
    Sketcher.Constraint("Vertical", 0, 2, 2, 2),
    Sketcher.Constraint("Vertical", 3, 2, 5, 2),
    Sketcher.Constraint("Equal", 6, 7),
    Sketcher.Constraint("Equal", 7, 8),
    Sketcher.Constraint("Equal", 8, 9),
    Sketcher.Constraint("Equal", 12, 13),
    Sketcher.Constraint("Equal", 13, 14),
    Sketcher.Constraint("Equal", 14, 15),
    Sketcher.Constraint("Angle", 1, Q("60 deg")),
    Sketcher.Constraint("DistanceX", 0, 1, 0, 2, 3.10783),
    Sketcher.Constraint("DistanceY", 2, 2, -1, 1, 1.645199),
    Sketcher.Constraint("DistanceX", -1, 1, 12, 2, 10.808402),
    Sketcher.Constraint("DistanceX", 4, 2, 6, 2, 15.432101),
    Sketcher.Constraint("DistanceX", 1, 2, 9, 2, 3.990001),
    Sketcher.Constraint("DistanceX", 10, 2, 8, 2, 2.606002),
    Sketcher.Constraint("DistanceY", 7, 2, 12, 2, 19.688501),
    Sketcher.Constraint("DistanceY", 1, 2, 13, 2, 16.811201),
    Sketcher.Constraint("Distance", 1, 3.10783),
    Sketcher.Constraint("DistanceX", 1, 2, -1, 1, 4.761052),
    Sketcher.Constraint("DistanceX", -1, 1, 7, 2, 4.451781),
    Sketcher.Constraint("DistanceY", 7, 2, -1, 1, 11.56164),
    Sketcher.Constraint("DistanceY", 11, 2, -1, 1, 16.08787),
    Sketcher.Constraint("DistanceX", -1, 1, 13, 2, 7.346971),
    Sketcher.Constraint("DistanceX", 14, 2, 13, 2, 5.495918),
    Sketcher.Constraint("DistanceY", 15, 2, 14, 2, 5.171528),
])
pad12 = body.newObject("PartDesign::Pad", "Pad011")
pad12.Profile = sketch12
pad12.Length = Q("3.5 in")
pad12.Reversed = True

# Sketch on an angled plane
sketch13 = body.newObject("Sketcher::SketchObject", "Sketch012")
sketch13.Placement = App.Placement(Vector(0, -2.842605, 7.378923), App.Rotation(Vector(1, 0, 0), Vector(0, 0.933152357, 0.359481123), Vector(0, -0.359481123, 0.933152357), "ZXY"))
sketch13.addGeometry([
    Part.LineSegment(Vector(2.153575, -14.298569, 0), Vector(-2.153575, -14.298569, 0)),  # 0
    Part.LineSegment(Vector(-2.153575, -14.298569, 0), Vector(-4.30715, -18.028671, 0)),  # 1
    Part.LineSegment(Vector(-4.30715, -18.028671, 0), Vector(-2.153575, -21.758772, 0)),  # 2
    Part.LineSegment(Vector(-2.153575, -21.758772, 0), Vector(2.153575, -21.758772, 0)),  # 3
    Part.LineSegment(Vector(2.153575, -21.758772, 0), Vector(4.30715, -18.028671, 0)),  # 4
    Part.LineSegment(Vector(4.30715, -18.028671, 0), Vector(2.153575, -14.298569, 0)),  # 5
    Part.LineSegment(Vector(22.883838, -8.574018, 0), Vector(22.883838, -4.266865, 0)),  # 6
    Part.LineSegment(Vector(22.883838, -4.266865, 0), Vector(19.153735, -2.113289, 0)),  # 7
    Part.LineSegment(Vector(19.153735, -2.113289, 0), Vector(15.423631, -4.266865, 0)),  # 8
    Part.LineSegment(Vector(15.423631, -4.266865, 0), Vector(15.423631, -8.574018, 0)),  # 9
    Part.LineSegment(Vector(15.423631, -8.574018, 0), Vector(19.153735, -10.727594, 0)),  # 10
    Part.LineSegment(Vector(19.153735, -10.727594, 0), Vector(22.883838, -8.574018, 0)),  # 11
    Part.LineSegment(Vector(-18.809082, -14.382811, 0), Vector(-12.173323, -13.925693, 0)),  # 12
    Part.LineSegment(Vector(-12.173323, -13.925693, 0), Vector(-9.251319, -7.950399, 0)),  # 13
    Part.LineSegment(Vector(-9.251319, -7.950399, 0), Vector(-12.965074, -2.432222, 0)),  # 14
    Part.LineSegment(Vector(-12.965074, -2.432222, 0), Vector(-19.600833, -2.889339, 0)),  # 15
    Part.LineSegment(Vector(-19.600833, -2.889339, 0), Vector(-22.522837, -8.864634, 0)),  # 16
    Part.LineSegment(Vector(-22.522837, -8.864634, 0), Vector(-18.809082, -14.382811, 0)),  # 17
], False)
sketch13.addConstraint([
    Sketcher.Constraint("Coincident", 0, 2, 1, 1),
    Sketcher.Constraint("Coincident", 1, 2, 2, 1),
    Sketcher.Constraint("Coincident", 2, 2, 3, 1),
    Sketcher.Constraint("Coincident", 3, 2, 4, 1),
    Sketcher.Constraint("Coincident", 4, 2, 5, 1),
    Sketcher.Constraint("Coincident", 5, 2, 0, 1),
    Sketcher.Constraint("Coincident", 6, 2, 7, 1),
    Sketcher.Constraint("Coincident", 7, 2, 8, 1),
    Sketcher.Constraint("Coincident", 8, 2, 9, 1),
    Sketcher.Constraint("Coincident", 9, 2, 10, 1),
    Sketcher.Constraint("Coincident", 10, 2, 11, 1),
    Sketcher.Constraint("Coincident", 11, 2, 6, 1),
    Sketcher.Constraint("Coincident", 12, 2, 13, 1),
    Sketcher.Constraint("Coincident", 13, 2, 14, 1),
    Sketcher.Constraint("Coincident", 14, 2, 15, 1),
    Sketcher.Constraint("Coincident", 15, 2, 16, 1),
    Sketcher.Constraint("Coincident", 16, 2, 17, 1),
    Sketcher.Constraint("Coincident", 17, 2, 12, 1),
    Sketcher.Constraint("Horizontal", 0),
    Sketcher.Constraint("Horizontal", 3),
    Sketcher.Constraint("Vertical", 6),
    Sketcher.Constraint("Vertical", 9),
    Sketcher.Constraint("Symmetric", 1, 2, 4, 2, -2),
    Sketcher.Constraint("Parallel", 1, 4),
    Sketcher.Constraint("Parallel", 2, 5),
    Sketcher.Constraint("Perpendicular", 4, 7),
    Sketcher.Constraint("Perpendicular", 5, 8),
    Sketcher.Constraint("Parallel", 7, 10),
    Sketcher.Constraint("Parallel", 8, 11),
    Sketcher.Constraint("Parallel", 12, 15),
    Sketcher.Constraint("Parallel", 13, 16),
    Sketcher.Constraint("Parallel", 14, 17),
    Sketcher.Constraint("Horizontal", 6, 2, 8, 2),
    Sketcher.Constraint("Horizontal", 9, 2, 11, 2),
    Sketcher.Constraint("Vertical", 0, 2, 2, 2),
    Sketcher.Constraint("Vertical", 3, 2, 5, 2),
    Sketcher.Constraint("Equal", 12, 13),
    Sketcher.Constraint("Equal", 13, 14),
    Sketcher.Constraint("Equal", 14, 15),
    Sketcher.Constraint("Angle", 1, Q("-120 deg")),
    Sketcher.Constraint("DistanceX", 15, 2, 0, 2, Q("0.6868999 in")),
    Sketcher.Constraint("DistanceX", 0, 2, 0, 1, 4.30715),
    Sketcher.Constraint("DistanceY", 13, 2, -1, 1, 7.950399),
    Sketcher.Constraint("DistanceY", 1, 2, 0, 2, 3.730102),
    Sketcher.Constraint("DistanceX", 12, 2, 5, 2, 14.326898),
    Sketcher.Constraint("DistanceX", 14, 2, 0, 2, 10.811499),
    Sketcher.Constraint("DistanceY", 6, 1, 6, 2, 4.307152),
    Sketcher.Constraint("DistanceY", 0, 2, -1, 1, 14.298569),
    Sketcher.Constraint("DistanceX", -1, 1, 6, 2, 22.883838),
    Sketcher.Constraint("DistanceY", 7, 2, -1, 1, 2.113289),
    Sketcher.Constraint("DistanceX", -1, 1, 8, 2, 15.423631),
    Sketcher.Constraint("DistanceX", 13, 2, -1, 1, 9.251319),
    Sketcher.Constraint("DistanceY", 14, 2, -1, 1, 2.432222),
])
pad13 = body.newObject("PartDesign::Pad", "Pad012")
pad13.Profile = sketch13
pad13.Length = Q("3.5 in")

# Sketch on an angled plane
sketch14 = body.newObject("Sketcher::SketchObject", "Sketch013")
sketch14.Placement = App.Placement(Vector(-1.701762, 2.342274, 8.04694), App.Rotation(Vector(0.980001201, 0.05561369, 0.191062196), Vector(0, -0.960152207, 0.279477616), Vector(0.19899157, -0.2738884, -0.940950317), "ZXY"))
sketch14.addGeometry([
    Part.LineSegment(Vector(-2.933801, -14.961278, 0), Vector(0, -10.572232, 0)),  # 0
    Part.LineSegment(Vector(0, -10.572232, 0), Vector(-2.334125, -5.836963, 0)),  # 1
    Part.LineSegment(Vector(-2.334125, -5.836963, 0), Vector(-7.60205, -5.49074, 0)),  # 2
    Part.LineSegment(Vector(-7.60205, -5.49074, 0), Vector(-10.535851, -9.879786, 0)),  # 3
    Part.LineSegment(Vector(-10.535851, -9.879786, 0), Vector(-8.201727, -14.615055, 0)),  # 4
    Part.LineSegment(Vector(-8.201727, -14.615055, 0), Vector(-2.933801, -14.961278, 0)),  # 5
    Part.LineSegment(Vector(20.901266, 6.60833, 0), Vector(17.064291, 6.60833, 0)),  # 6
    Part.LineSegment(Vector(17.064291, 6.60833, 0), Vector(15.145803, 3.285412, 0)),  # 7
    Part.LineSegment(Vector(15.145803, 3.285412, 0), Vector(17.064291, -0.037506, 0)),  # 8
    Part.LineSegment(Vector(17.064291, -0.037506, 0), Vector(20.901266, -0.037506, 0)),  # 9
    Part.LineSegment(Vector(20.901266, -0.037506, 0), Vector(22.819754, 3.285412, 0)),  # 10
    Part.LineSegment(Vector(22.819754, 3.285412, 0), Vector(20.901266, 6.60833, 0)),  # 11
    Part.LineSegment(Vector(2.372886, 10.142138, 0), Vector(0.179161, 14.178595, 0)),  # 12
    Part.LineSegment(Vector(0.179161, 14.178595, 0), Vector(-4.413376, 14.297002, 0)),  # 13
    Part.LineSegment(Vector(-4.413376, 14.297002, 0), Vector(-6.812188, 10.378952, 0)),  # 14
    Part.LineSegment(Vector(-6.812188, 10.378952, 0), Vector(-4.618462, 6.342494, 0)),  # 15
    Part.LineSegment(Vector(-4.618462, 6.342494, 0), Vector(-0.025925, 6.224088, 0)),  # 16
    Part.LineSegment(Vector(-0.025925, 6.224088, 0), Vector(2.372886, 10.142138, 0)),  # 17
    Part.LineSegment(Vector(5.974987, -5.055604, 0), Vector(8.431961, -3.300621, 0)),  # 18
    Part.LineSegment(Vector(8.431961, -3.300621, 0), Vector(8.140589, -0.295327, 0)),  # 19
    Part.LineSegment(Vector(8.140589, -0.295327, 0), Vector(5.392242, 0.954983, 0)),  # 20
    Part.LineSegment(Vector(5.392242, 0.954983, 0), Vector(2.935268, -0.799999, 0)),  # 21
    Part.LineSegment(Vector(2.935268, -0.799999, 0), Vector(3.22664, -3.805293, 0)),  # 22
    Part.LineSegment(Vector(3.22664, -3.805293, 0), Vector(5.974987, -5.055604, 0)),  # 23
], False)
sketch14.addConstraint([
    Sketcher.Constraint("Coincident", 0, 2, 1, 1),
    Sketcher.Constraint("Coincident", 1, 2, 2, 1),
    Sketcher.Constraint("Coincident", 2, 2, 3, 1),
    Sketcher.Constraint("Coincident", 3, 2, 4, 1),
    Sketcher.Constraint("Coincident", 4, 2, 5, 1),
    Sketcher.Constraint("Coincident", 5, 2, 0, 1),
    Sketcher.Constraint("Coincident", 6, 2, 7, 1),
    Sketcher.Constraint("Coincident", 7, 2, 8, 1),
    Sketcher.Constraint("Coincident", 8, 2, 9, 1),
    Sketcher.Constraint("Coincident", 9, 2, 10, 1),
    Sketcher.Constraint("Coincident", 10, 2, 11, 1),
    Sketcher.Constraint("Coincident", 11, 2, 6, 1),
    Sketcher.Constraint("Coincident", 12, 2, 13, 1),
    Sketcher.Constraint("Coincident", 13, 2, 14, 1),
    Sketcher.Constraint("Coincident", 14, 2, 15, 1),
    Sketcher.Constraint("Coincident", 15, 2, 16, 1),
    Sketcher.Constraint("Coincident", 16, 2, 17, 1),
    Sketcher.Constraint("Coincident", 17, 2, 12, 1),
    Sketcher.Constraint("Coincident", 18, 2, 19, 1),
    Sketcher.Constraint("Coincident", 19, 2, 20, 1),
    Sketcher.Constraint("Coincident", 20, 2, 21, 1),
    Sketcher.Constraint("Coincident", 21, 2, 22, 1),
    Sketcher.Constraint("Coincident", 22, 2, 23, 1),
    Sketcher.Constraint("Coincident", 23, 2, 18, 1),
    Sketcher.Constraint("Horizontal", 6),
    Sketcher.Constraint("Horizontal", 9),
    Sketcher.Constraint("PointOnObject", 0, 2, -2),
    Sketcher.Constraint("DistanceY", 0, 2, 6, 2, Q("0.6764001 in")),
    Sketcher.Constraint("DistanceX", 5, 2, -1, 1, 2.933801),
    Sketcher.Constraint("DistanceY", 21, 2, -1, 1, 0.799999),
    Sketcher.Constraint("DistanceX", 3, 2, 2, 2, 2.933801),
    Sketcher.Constraint("DistanceX", 4, 2, 1, 2, 5.867602),
    Sketcher.Constraint("DistanceY", 15, 2, 12, 2, 7.836101),
    Sketcher.Constraint("DistanceX", 1, 2, 16, 2, 2.308199),
    Sketcher.Constraint("DistanceX", 19, 2, 8, 2, 8.923702),
    Sketcher.Constraint("DistanceX", 19, 2, 6, 2, 8.923702),
    Sketcher.Constraint("DistanceX", 22, 2, 20, 2, 2.165602),
    Sketcher.Constraint("DistanceX", 23, 2, 19, 2, 2.165602),
    Sketcher.Constraint("Distance", 0, 5.279291),
    Sketcher.Constraint("Distance", 1, 5.279291),
    Sketcher.Constraint("Distance", 2, 5.279291),
    Sketcher.Constraint("Distance", 3, 5.279291),
    Sketcher.Constraint("Distance", 4, 5.279291),
    Sketcher.Constraint("Distance", 5, 5.279291),
    Sketcher.Constraint("DistanceX", 6, 2, 6, 1, 3.836975),
    Sketcher.Constraint("DistanceX", 9, 1, 9, 2, 3.836975),
    Sketcher.Constraint("DistanceX", 2, 2, -1, 1, 7.60205),
    Sketcher.Constraint("DistanceY", 2, 2, -1, 1, 5.49074),
    Sketcher.Constraint("DistanceX", -1, 1, 6, 2, 17.064291),
    Sketcher.Constraint("DistanceY", -1, 1, 7, 2, 3.285412),
    Sketcher.Constraint("DistanceY", -1, 1, 10, 2, 3.285412),
    Sketcher.Constraint("DistanceX", -1, 1, 12, 2, 0.179161),
    Sketcher.Constraint("DistanceY", -1, 1, 14, 2, 10.378952),
    Sketcher.Constraint("DistanceY", -1, 1, 17, 2, 10.142138),
    Sketcher.Constraint("DistanceX", -1, 1, 18, 2, 8.431961),
    Sketcher.Constraint("DistanceY", 18, 2, -1, 1, 3.300621),
    Sketcher.Constraint("DistanceX", -1, 1, 20, 2, 5.392242),
    Sketcher.Constraint("DistanceY", 8, 2, 7, 2, 3.322918),
    Sketcher.Constraint("DistanceX", 7, 2, 10, 2, 7.673951),
    Sketcher.Constraint("DistanceY", 1, 2, 12, 2, 20.015558),
    Sketcher.Constraint("DistanceY", 2, 2, 13, 2, 19.787742),
    Sketcher.Constraint("DistanceX", 13, 2, 1, 2, 2.079251),
    Sketcher.Constraint("DistanceX", 13, 2, 7, 2, 19.559179),
    Sketcher.Constraint("DistanceX", 14, 2, 13, 2, 2.398812),
    Sketcher.Constraint("DistanceY", 1, 2, 16, 2, 12.061051),
    Sketcher.Constraint("DistanceX", 16, 2, 17, 2, 2.398812),
    Sketcher.Constraint("DistanceX", 15, 2, 17, 2, 6.991349),
    Sketcher.Constraint("DistanceY", 19, 2, 7, 2, 3.580739),
    Sketcher.Constraint("DistanceY", 19, 2, 20, 2, 1.250311),
    Sketcher.Constraint("DistanceX", 21, 2, 19, 2, 5.205321),
    Sketcher.Constraint("DistanceY", 22, 2, 18, 2, 0.504672),
    Sketcher.Constraint("DistanceY", 23, 2, 22, 2, 1.250311),
])
pad14 = body.newObject("PartDesign::Pad", "Pad013")
pad14.Profile = sketch14
pad14.Length = Q("3.5 in")
pad14.Reversed = True

doc.recompute()
